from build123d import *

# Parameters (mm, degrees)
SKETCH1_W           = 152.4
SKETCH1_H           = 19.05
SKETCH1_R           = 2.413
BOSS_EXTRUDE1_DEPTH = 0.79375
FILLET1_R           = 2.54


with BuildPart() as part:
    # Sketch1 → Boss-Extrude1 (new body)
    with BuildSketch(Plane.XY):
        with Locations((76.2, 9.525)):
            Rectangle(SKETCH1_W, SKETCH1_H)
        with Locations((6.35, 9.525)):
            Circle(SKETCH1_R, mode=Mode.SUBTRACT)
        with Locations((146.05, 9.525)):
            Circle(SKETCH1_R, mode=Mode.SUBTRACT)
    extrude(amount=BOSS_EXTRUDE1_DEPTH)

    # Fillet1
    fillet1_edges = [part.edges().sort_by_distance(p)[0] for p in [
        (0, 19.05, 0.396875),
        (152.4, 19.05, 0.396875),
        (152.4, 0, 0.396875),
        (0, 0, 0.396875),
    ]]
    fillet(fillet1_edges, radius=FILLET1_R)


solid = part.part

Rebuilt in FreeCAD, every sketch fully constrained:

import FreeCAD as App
import Part
import Sketcher
Q = App.Units.Quantity


def edges_at(feature, points):
    """Names of the edges that pass closest to the given points."""
    edges = feature.Shape.Edges
    near = lambda p: min(range(len(edges)), key=lambda i: edges[i].distToShape(Part.Vertex(*p))[0])
    return sorted({f"Edge{near(p) + 1}" for p in points})


def add_polygon(sketch, points):
    """Adds a closed chain of lines whose ends are joined by coincident constraints."""
    first, n = sketch.GeometryCount, len(points)
    for a, b in zip(points, points[1:] + points[:1]):
        sketch.addGeometry(Part.LineSegment(App.Vector(*a, 0), App.Vector(*b, 0)), False)
    for i in range(n):
        sketch.addConstraint(Sketcher.Constraint("Coincident", first + i, 2, first + (i + 1) % n, 1))

doc = App.newDocument("Part")
body = doc.addObject("PartDesign::Body", "Body")

sketch1 = doc.addObject("Sketcher::SketchObject", "Sketch")
body.addObject(sketch1)
sketch1.AttachmentSupport = (doc.XY_Plane, [""])
sketch1.MapMode = "FlatFace"
add_polygon(sketch1, [(0, 19.05), (0, 0), (152.4, 0), (152.4, 19.05)])
sketch1.addGeometry(Part.Circle(App.Vector(6.35, 9.525, 0), App.Vector(0, 0, 1), 2.413), False)
sketch1.addGeometry(Part.Circle(App.Vector(146.05, 9.525, 0), App.Vector(0, 0, 1), 2.413), False)
sketch1.addConstraint([
    Sketcher.Constraint("Vertical", 0),
    Sketcher.Constraint("Horizontal", 1),
    Sketcher.Constraint("Vertical", 2),
    Sketcher.Constraint("Horizontal", 3),
    Sketcher.Constraint("Coincident", 0, 2, -1, 1),
    Sketcher.Constraint("Equal", 4, 5),
    Sketcher.Constraint("Horizontal", 4, 3, 5, 3),
    Sketcher.Constraint("Diameter", 4, Q("0.19 in")),
    Sketcher.Constraint("DistanceX", 1, 1, 1, 2, Q("6 in")),
    Sketcher.Constraint("DistanceY", 0, 2, 0, 1, Q("0.75 in")),
    Sketcher.Constraint("DistanceX", 4, 3, 5, 3, Q("5.5 in")),
    Sketcher.Constraint("DistanceX", -1, 1, 4, 3, Q("0.25 in")),
    Sketcher.Constraint("DistanceY", -1, 1, 4, 3, Q("0.375 in")),
])
pad1 = doc.addObject("PartDesign::Pad", "Pad")
body.addObject(pad1)
pad1.Profile = sketch1
pad1.Length = Q("0.03125 in")
doc.recompute()

fillet = doc.addObject("PartDesign::Fillet", "Fillet")
body.addObject(fillet)
fillet.Base = (pad1, edges_at(pad1, [
    (0, 19.05, 0.397),
    (152.4, 19.05, 0.397),
    (152.4, 0, 0.397),
    (0, 0, 0.397),
]))
fillet.Radius = Q("0.1 in")

doc.recompute()
